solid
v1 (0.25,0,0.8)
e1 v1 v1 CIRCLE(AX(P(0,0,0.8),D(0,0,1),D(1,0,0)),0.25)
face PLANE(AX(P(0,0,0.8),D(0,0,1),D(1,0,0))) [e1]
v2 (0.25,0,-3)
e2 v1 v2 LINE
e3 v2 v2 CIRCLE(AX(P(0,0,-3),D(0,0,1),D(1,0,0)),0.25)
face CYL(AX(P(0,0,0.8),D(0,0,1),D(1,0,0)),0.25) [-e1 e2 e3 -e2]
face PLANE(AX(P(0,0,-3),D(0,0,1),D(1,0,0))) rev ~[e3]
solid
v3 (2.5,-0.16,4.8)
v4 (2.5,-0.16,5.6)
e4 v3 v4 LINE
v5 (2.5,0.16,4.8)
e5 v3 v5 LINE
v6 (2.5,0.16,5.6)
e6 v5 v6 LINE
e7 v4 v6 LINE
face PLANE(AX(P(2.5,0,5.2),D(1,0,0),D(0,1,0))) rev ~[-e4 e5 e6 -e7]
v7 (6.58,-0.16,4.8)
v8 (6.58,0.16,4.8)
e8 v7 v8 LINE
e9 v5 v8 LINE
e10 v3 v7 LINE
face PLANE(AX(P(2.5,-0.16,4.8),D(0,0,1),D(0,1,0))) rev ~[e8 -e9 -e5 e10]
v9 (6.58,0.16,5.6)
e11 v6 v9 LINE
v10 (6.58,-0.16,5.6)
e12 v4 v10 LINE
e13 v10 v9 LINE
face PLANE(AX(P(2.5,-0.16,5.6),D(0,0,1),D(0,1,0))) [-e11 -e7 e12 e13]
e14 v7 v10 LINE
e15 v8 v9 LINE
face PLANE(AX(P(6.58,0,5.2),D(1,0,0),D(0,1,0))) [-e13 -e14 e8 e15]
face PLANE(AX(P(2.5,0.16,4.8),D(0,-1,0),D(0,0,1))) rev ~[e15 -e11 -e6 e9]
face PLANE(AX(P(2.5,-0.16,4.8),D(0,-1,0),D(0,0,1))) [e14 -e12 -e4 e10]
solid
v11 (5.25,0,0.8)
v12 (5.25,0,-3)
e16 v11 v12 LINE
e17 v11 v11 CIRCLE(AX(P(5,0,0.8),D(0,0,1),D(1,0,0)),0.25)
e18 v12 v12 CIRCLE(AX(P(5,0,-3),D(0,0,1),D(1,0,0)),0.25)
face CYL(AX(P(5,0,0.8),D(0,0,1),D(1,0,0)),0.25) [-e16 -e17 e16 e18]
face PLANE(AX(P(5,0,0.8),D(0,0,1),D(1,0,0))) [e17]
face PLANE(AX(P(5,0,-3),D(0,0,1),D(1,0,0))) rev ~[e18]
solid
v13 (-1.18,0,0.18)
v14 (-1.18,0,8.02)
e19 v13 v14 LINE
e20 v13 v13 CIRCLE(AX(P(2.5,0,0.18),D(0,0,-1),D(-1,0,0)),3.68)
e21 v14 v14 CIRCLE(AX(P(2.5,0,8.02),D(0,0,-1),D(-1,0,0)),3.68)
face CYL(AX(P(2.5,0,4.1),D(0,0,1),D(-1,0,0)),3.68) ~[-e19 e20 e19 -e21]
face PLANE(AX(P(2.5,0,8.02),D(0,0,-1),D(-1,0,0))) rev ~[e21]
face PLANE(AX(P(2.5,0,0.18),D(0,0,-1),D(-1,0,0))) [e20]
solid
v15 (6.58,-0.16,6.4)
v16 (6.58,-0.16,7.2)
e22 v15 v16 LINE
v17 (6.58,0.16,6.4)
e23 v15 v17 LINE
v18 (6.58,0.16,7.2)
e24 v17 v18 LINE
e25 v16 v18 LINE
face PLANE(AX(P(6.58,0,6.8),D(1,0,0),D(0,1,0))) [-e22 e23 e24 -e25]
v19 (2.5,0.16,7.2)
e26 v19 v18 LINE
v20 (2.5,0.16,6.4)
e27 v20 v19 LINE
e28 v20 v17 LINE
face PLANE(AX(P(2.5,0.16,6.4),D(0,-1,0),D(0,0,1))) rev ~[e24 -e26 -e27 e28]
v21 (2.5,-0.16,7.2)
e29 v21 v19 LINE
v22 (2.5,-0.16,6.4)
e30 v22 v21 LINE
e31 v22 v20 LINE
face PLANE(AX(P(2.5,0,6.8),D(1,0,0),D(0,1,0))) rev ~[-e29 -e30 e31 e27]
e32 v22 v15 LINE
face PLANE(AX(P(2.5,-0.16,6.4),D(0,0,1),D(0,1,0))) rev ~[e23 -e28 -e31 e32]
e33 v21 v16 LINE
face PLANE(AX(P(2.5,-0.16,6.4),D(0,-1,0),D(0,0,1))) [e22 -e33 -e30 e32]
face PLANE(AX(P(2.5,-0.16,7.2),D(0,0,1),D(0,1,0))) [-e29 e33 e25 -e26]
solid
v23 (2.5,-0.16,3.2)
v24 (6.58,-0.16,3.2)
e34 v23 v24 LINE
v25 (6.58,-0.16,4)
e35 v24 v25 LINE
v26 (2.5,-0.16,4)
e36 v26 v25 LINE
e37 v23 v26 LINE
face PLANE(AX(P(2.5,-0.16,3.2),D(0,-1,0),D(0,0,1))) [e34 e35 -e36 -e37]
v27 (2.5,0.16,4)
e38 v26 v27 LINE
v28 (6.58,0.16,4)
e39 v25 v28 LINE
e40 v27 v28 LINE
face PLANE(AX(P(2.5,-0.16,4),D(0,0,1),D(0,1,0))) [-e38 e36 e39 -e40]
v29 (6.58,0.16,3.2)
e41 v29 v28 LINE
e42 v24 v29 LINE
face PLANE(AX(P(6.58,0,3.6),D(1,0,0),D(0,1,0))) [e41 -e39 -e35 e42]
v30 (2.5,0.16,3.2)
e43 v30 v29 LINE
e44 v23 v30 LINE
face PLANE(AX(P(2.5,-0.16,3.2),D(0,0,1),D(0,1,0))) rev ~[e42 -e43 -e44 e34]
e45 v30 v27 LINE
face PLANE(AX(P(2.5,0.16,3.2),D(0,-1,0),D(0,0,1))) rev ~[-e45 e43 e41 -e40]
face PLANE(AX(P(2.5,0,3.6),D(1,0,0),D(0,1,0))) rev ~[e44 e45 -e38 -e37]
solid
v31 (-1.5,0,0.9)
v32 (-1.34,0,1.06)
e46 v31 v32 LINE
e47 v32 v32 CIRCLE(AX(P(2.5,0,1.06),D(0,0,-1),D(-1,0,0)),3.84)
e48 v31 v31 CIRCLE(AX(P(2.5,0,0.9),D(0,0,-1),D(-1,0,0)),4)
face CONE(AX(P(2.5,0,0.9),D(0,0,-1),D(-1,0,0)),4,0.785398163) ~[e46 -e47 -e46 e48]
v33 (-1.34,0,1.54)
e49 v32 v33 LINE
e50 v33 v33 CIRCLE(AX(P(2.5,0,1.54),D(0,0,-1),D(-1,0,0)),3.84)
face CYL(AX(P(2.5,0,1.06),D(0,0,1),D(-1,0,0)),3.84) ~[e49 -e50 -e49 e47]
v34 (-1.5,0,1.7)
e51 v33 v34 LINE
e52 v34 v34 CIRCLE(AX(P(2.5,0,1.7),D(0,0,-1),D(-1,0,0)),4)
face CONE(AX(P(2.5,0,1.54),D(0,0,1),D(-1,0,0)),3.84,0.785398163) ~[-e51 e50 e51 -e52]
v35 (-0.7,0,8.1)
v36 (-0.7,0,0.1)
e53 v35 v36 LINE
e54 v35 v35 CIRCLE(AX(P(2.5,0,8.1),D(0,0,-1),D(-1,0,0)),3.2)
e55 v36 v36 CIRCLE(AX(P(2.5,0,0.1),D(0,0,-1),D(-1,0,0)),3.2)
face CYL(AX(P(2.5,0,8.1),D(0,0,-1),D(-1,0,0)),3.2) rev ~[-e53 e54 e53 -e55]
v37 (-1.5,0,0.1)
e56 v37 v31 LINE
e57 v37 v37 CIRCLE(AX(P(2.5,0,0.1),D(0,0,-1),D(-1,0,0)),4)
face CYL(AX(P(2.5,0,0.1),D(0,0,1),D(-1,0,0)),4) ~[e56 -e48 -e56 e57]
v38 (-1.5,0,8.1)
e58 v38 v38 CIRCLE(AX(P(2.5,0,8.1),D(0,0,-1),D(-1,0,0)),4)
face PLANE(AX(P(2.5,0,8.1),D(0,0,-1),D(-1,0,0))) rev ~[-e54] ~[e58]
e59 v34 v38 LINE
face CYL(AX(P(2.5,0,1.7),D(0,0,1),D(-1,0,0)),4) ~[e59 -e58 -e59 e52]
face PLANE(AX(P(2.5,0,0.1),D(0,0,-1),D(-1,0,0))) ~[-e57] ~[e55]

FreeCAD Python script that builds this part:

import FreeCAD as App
import Part
import Sketcher
from FreeCAD import Vector
Q = App.Units.Quantity

doc = App.newDocument("Part")
body = doc.addObject("PartDesign::Body", "Body")

# Sketch on XZ plane
sketch1 = doc.addObject("Sketcher::SketchObject", "Sketch")
body.addObject(sketch1)
sketch1.AttachmentSupport = (doc.XZ_Plane, [""])
sketch1.MapMode = "FlatFace"
sketch1.addGeometry(Part.LineSegment(Vector(-1.5, 0.9, 0), Vector(-1.5, 0.1, 0)), False)
sketch1.addGeometry(Part.LineSegment(Vector(-1.5, 0.1, 0), Vector(-0.7, 0.1, 0)), False)
sketch1.addGeometry(Part.LineSegment(Vector(-0.7, 0.1, 0), Vector(-0.7, 8.1, 0)), False)
sketch1.addGeometry(Part.LineSegment(Vector(-0.7, 8.1, 0), Vector(-1.5, 8.1, 0)), False)
sketch1.addGeometry(Part.LineSegment(Vector(-1.5, 8.1, 0), Vector(-1.5, 1.7, 0)), False)
sketch1.addGeometry(Part.LineSegment(Vector(-1.5, 1.7, 0), Vector(-1.34, 1.54, 0)), False)
sketch1.addGeometry(Part.LineSegment(Vector(-1.34, 1.54, 0), Vector(-1.34, 1.06, 0)), False)
sketch1.addGeometry(Part.LineSegment(Vector(-1.34, 1.06, 0), Vector(-1.5, 0.9, 0)), False)
sketch1.addGeometry(Part.LineSegment(Vector(2.5, 8.1, 0), Vector(2.5, 0.1, 0)), True)  # axis
sketch1.addConstraint(Sketcher.Constraint("Coincident", 0, 2, 1, 1))
sketch1.addConstraint(Sketcher.Constraint("Coincident", 1, 2, 2, 1))
sketch1.addConstraint(Sketcher.Constraint("Coincident", 2, 2, 3, 1))
sketch1.addConstraint(Sketcher.Constraint("Coincident", 3, 2, 4, 1))
sketch1.addConstraint(Sketcher.Constraint("Coincident", 4, 2, 5, 1))
sketch1.addConstraint(Sketcher.Constraint("Coincident", 5, 2, 6, 1))
sketch1.addConstraint(Sketcher.Constraint("Coincident", 6, 2, 7, 1))
sketch1.addConstraint(Sketcher.Constraint("Coincident", 7, 2, 0, 1))
sketch1.addConstraint(Sketcher.Constraint("Vertical", 0))
sketch1.addConstraint(Sketcher.Constraint("Horizontal", 1))
sketch1.addConstraint(Sketcher.Constraint("Vertical", 2))
sketch1.addConstraint(Sketcher.Constraint("Horizontal", 3))
sketch1.addConstraint(Sketcher.Constraint("Vertical", 4))
sketch1.addConstraint(Sketcher.Constraint("Vertical", 6))
sketch1.addConstraint(Sketcher.Constraint("Vertical", 8))
sketch1.addConstraint(Sketcher.Constraint("Perpendicular", 5, 7))
sketch1.addConstraint(Sketcher.Constraint("Horizontal", 3, 2, 8, 1))
sketch1.addConstraint(Sketcher.Constraint("Horizontal", 1, 2, 8, 2))
sketch1.addConstraint(Sketcher.Constraint("Vertical", 0, 2, 3, 2))
sketch1.addConstraint(Sketcher.Constraint("Equal", 3, 0))
sketch1.addConstraint(Sketcher.Constraint("Equal", 5, 7))
sketch1.addConstraint(Sketcher.Constraint("DistanceY", 2, 1, 2, 2, Q("8 mm")))
sketch1.addConstraint(Sketcher.Constraint("DistanceX", 1, 1, 1, 2, Q("0.8 mm")))
sketch1.addConstraint(Sketcher.Constraint("DistanceY", 4, 2, 4, 1, Q("6.4 mm")))
sketch1.addConstraint(Sketcher.Constraint("DistanceX", 3, 2, 8, 1, Q("4 mm")))
sketch1.addConstraint(Sketcher.Constraint("DistanceY", 6, 2, 6, 1, Q("0.48 mm")))
sketch1.addConstraint(Sketcher.Constraint("DistanceX", 0, 2, -1, 1, Q("1.5 mm")))
sketch1.addConstraint(Sketcher.Constraint("DistanceY", -1, 1, 0, 2, Q("0.1 mm")))
revolution = doc.addObject("PartDesign::Revolution", "Revolution")
body.addObject(revolution)
revolution.Profile = sketch1
revolution.ReferenceAxis = (sketch1, ["Axis0"])
revolution.Angle = 360
body2 = doc.addObject("PartDesign::Body", "Body001")

# Sketch on XZ plane
sketch2 = doc.addObject("Sketcher::SketchObject", "Sketch001")
body2.addObject(sketch2)
sketch2.AttachmentSupport = (doc.getObject("XZ_Plane001"), [""])
sketch2.MapMode = "FlatFace"
sketch2.addGeometry(Part.LineSegment(Vector(-1.2, 8, 0), Vector(-1.2, 0.2, 0)), False)
sketch2.addGeometry(Part.LineSegment(Vector(-1.2, 0.2, 0), Vector(2.5, 0.2, 0)), False)
sketch2.addGeometry(Part.LineSegment(Vector(2.5, 0.2, 0), Vector(2.5, 8, 0)), False)
sketch2.addGeometry(Part.LineSegment(Vector(2.5, 8, 0), Vector(-1.2, 8, 0)), False)
sketch2.addGeometry(Part.LineSegment(Vector(2.5, 8, 0), Vector(2.5, 0.2, 0)), True)  # axis
sketch2.addConstraint(Sketcher.Constraint("Coincident", 0, 2, 1, 1))
sketch2.addConstraint(Sketcher.Constraint("Coincident", 1, 2, 2, 1))
sketch2.addConstraint(Sketcher.Constraint("Coincident", 2, 2, 3, 1))
sketch2.addConstraint(Sketcher.Constraint("Coincident", 3, 2, 0, 1))
sketch2.addConstraint(Sketcher.Constraint("Vertical", 0))
sketch2.addConstraint(Sketcher.Constraint("Horizontal", 1))
sketch2.addConstraint(Sketcher.Constraint("Vertical", 2))
sketch2.addConstraint(Sketcher.Constraint("Horizontal", 3))
sketch2.addConstraint(Sketcher.Constraint("Vertical", 4))
sketch2.addConstraint(Sketcher.Constraint("Coincident", 4, 1, 2, 2))
sketch2.addConstraint(Sketcher.Constraint("Horizontal", 0, 2, 4, 2))
sketch2.addConstraint(Sketcher.Constraint("DistanceX", 1, 1, 1, 2, Q("3.68 mm")))
sketch2.addConstraint(Sketcher.Constraint("DistanceY", 0, 2, 0, 1, Q("7.84 mm")))
sketch2.addConstraint(Sketcher.Constraint("DistanceX", -1, 1, 1, 2, Q("2.5 mm")))
sketch2.addConstraint(Sketcher.Constraint("DistanceY", -1, 1, 0, 2, Q("0.18 mm")))
revolution2 = doc.addObject("PartDesign::Revolution", "Revolution001")
body2.addObject(revolution2)
revolution2.Profile = sketch2
revolution2.ReferenceAxis = (sketch2, ["Axis0"])
revolution2.Angle = 360
body3 = doc.addObject("PartDesign::Body", "Body002")
body3.AllowCompound = True

# Sketch on XY plane
sketch3 = doc.addObject("Sketcher::SketchObject", "Sketch002")
body3.addObject(sketch3)
sketch3.AttachmentSupport = (doc.getObject("XY_Plane002"), [""])
sketch3.MapMode = "FlatFace"
sketch3.AttachmentOffset = App.Placement(Vector(0, 0, 0.8), App.Rotation())
sketch3.addGeometry(Part.Circle(Vector(0, 0, 0), Vector(0, 0, 1), 0.25), False)
sketch3.addGeometry(Part.Circle(Vector(5, 0, 0), Vector(0, 0, 1), 0.25), False)
sketch3.addConstraint(Sketcher.Constraint("Coincident", 0, 3, -1, 1))
sketch3.addConstraint(Sketcher.Constraint("Equal", 0, 1))
sketch3.addConstraint(Sketcher.Constraint("PointOnObject", 1, 3, -1))
sketch3.addConstraint(Sketcher.Constraint("Diameter", 0, Q("0.5 mm")))
sketch3.addConstraint(Sketcher.Constraint("DistanceX", -1, 1, 1, 3, Q("5 mm")))
pad1 = doc.addObject("PartDesign::Pad", "Pad")
body3.addObject(pad1)
pad1.Profile = sketch3
pad1.Length = 3.8
pad1.Reversed = True
body4 = doc.addObject("PartDesign::Body", "Body003")
body4.AllowCompound = True

# Sketch on YZ plane
sketch4 = doc.addObject("Sketcher::SketchObject", "Sketch003")
body4.addObject(sketch4)
sketch4.AttachmentSupport = (doc.getObject("YZ_Plane003"), [""])
sketch4.MapMode = "FlatFace"
sketch4.AttachmentOffset = App.Placement(Vector(0, 0, 2.5), App.Rotation())
sketch4.addGeometry(Part.LineSegment(Vector(-0.16, 4, 0), Vector(-0.16, 3.2, 0)), False)
sketch4.addGeometry(Part.LineSegment(Vector(-0.16, 3.2, 0), Vector(0.16, 3.2, 0)), False)
sketch4.addGeometry(Part.LineSegment(Vector(0.16, 3.2, 0), Vector(0.16, 4, 0)), False)
sketch4.addGeometry(Part.LineSegment(Vector(0.16, 4, 0), Vector(-0.16, 4, 0)), False)
sketch4.addGeometry(Part.LineSegment(Vector(-0.16, 5.6, 0), Vector(-0.16, 4.8, 0)), False)
sketch4.addGeometry(Part.LineSegment(Vector(-0.16, 4.8, 0), Vector(0.16, 4.8, 0)), False)
sketch4.addGeometry(Part.LineSegment(Vector(0.16, 4.8, 0), Vector(0.16, 5.6, 0)), False)
sketch4.addGeometry(Part.LineSegment(Vector(0.16, 5.6, 0), Vector(-0.16, 5.6, 0)), False)
sketch4.addGeometry(Part.LineSegment(Vector(-0.16, 7.2, 0), Vector(-0.16, 6.4, 0)), False)
sketch4.addGeometry(Part.LineSegment(Vector(-0.16, 6.4, 0), Vector(0.16, 6.4, 0)), False)
sketch4.addGeometry(Part.LineSegment(Vector(0.16, 6.4, 0), Vector(0.16, 7.2, 0)), False)
sketch4.addGeometry(Part.LineSegment(Vector(0.16, 7.2, 0), Vector(-0.16, 7.2, 0)), False)
sketch4.addConstraint(Sketcher.Constraint("Coincident", 0, 2, 1, 1))
sketch4.addConstraint(Sketcher.Constraint("Coincident", 1, 2, 2, 1))
sketch4.addConstraint(Sketcher.Constraint("Coincident", 2, 2, 3, 1))
sketch4.addConstraint(Sketcher.Constraint("Coincident", 3, 2, 0, 1))
sketch4.addConstraint(Sketcher.Constraint("Coincident", 4, 2, 5, 1))
sketch4.addConstraint(Sketcher.Constraint("Coincident", 5, 2, 6, 1))
sketch4.addConstraint(Sketcher.Constraint("Coincident", 6, 2, 7, 1))
sketch4.addConstraint(Sketcher.Constraint("Coincident", 7, 2, 4, 1))
sketch4.addConstraint(Sketcher.Constraint("Coincident", 8, 2, 9, 1))
sketch4.addConstraint(Sketcher.Constraint("Coincident", 9, 2, 10, 1))
sketch4.addConstraint(Sketcher.Constraint("Coincident", 10, 2, 11, 1))
sketch4.addConstraint(Sketcher.Constraint("Coincident", 11, 2, 8, 1))
sketch4.addConstraint(Sketcher.Constraint("Vertical", 0))
sketch4.addConstraint(Sketcher.Constraint("Horizontal", 1))
sketch4.addConstraint(Sketcher.Constraint("Vertical", 2))
sketch4.addConstraint(Sketcher.Constraint("Horizontal", 3))
sketch4.addConstraint(Sketcher.Constraint("Vertical", 4))
sketch4.addConstraint(Sketcher.Constraint("Horizontal", 5))
sketch4.addConstraint(Sketcher.Constraint("Vertical", 6))
sketch4.addConstraint(Sketcher.Constraint("Horizontal", 7))
sketch4.addConstraint(Sketcher.Constraint("Vertical", 8))
sketch4.addConstraint(Sketcher.Constraint("Horizontal", 9))
sketch4.addConstraint(Sketcher.Constraint("Vertical", 10))
sketch4.addConstraint(Sketcher.Constraint("Horizontal", 11))
sketch4.addConstraint(Sketcher.Constraint("Vertical", 3, 2, 4, 2))
sketch4.addConstraint(Sketcher.Constraint("Vertical", 2, 2, 5, 2))
sketch4.addConstraint(Sketcher.Constraint("Vertical", 7, 2, 8, 2))
sketch4.addConstraint(Sketcher.Constraint("Vertical", 6, 2, 9, 2))
sketch4.addConstraint(Sketcher.Constraint("Equal", 2, 4))
sketch4.addConstraint(Sketcher.Constraint("Equal", 6, 8))
sketch4.addConstraint(Sketcher.Constraint("DistanceY", 0, 2, 0, 1, Q("0.8 mm")))
sketch4.addConstraint(Sketcher.Constraint("DistanceY", -1, 1, 2, 2, Q("4 mm")))
sketch4.addConstraint(Sketcher.Constraint("DistanceX", 1, 1, 1, 2, Q("0.32 mm")))
sketch4.addConstraint(Sketcher.Constraint("DistanceY", -1, 1, 4, 2, Q("4.8 mm")))
sketch4.addConstraint(Sketcher.Constraint("DistanceY", -1, 1, 8, 2, Q("6.4 mm")))
sketch4.addConstraint(Sketcher.Constraint("DistanceX", 0, 2, -1, 1, Q("0.16 mm")))
pad2 = doc.addObject("PartDesign::Pad", "Pad001")
body4.addObject(pad2)
pad2.Profile = sketch4
pad2.Length = 4.08

doc.recompute()
